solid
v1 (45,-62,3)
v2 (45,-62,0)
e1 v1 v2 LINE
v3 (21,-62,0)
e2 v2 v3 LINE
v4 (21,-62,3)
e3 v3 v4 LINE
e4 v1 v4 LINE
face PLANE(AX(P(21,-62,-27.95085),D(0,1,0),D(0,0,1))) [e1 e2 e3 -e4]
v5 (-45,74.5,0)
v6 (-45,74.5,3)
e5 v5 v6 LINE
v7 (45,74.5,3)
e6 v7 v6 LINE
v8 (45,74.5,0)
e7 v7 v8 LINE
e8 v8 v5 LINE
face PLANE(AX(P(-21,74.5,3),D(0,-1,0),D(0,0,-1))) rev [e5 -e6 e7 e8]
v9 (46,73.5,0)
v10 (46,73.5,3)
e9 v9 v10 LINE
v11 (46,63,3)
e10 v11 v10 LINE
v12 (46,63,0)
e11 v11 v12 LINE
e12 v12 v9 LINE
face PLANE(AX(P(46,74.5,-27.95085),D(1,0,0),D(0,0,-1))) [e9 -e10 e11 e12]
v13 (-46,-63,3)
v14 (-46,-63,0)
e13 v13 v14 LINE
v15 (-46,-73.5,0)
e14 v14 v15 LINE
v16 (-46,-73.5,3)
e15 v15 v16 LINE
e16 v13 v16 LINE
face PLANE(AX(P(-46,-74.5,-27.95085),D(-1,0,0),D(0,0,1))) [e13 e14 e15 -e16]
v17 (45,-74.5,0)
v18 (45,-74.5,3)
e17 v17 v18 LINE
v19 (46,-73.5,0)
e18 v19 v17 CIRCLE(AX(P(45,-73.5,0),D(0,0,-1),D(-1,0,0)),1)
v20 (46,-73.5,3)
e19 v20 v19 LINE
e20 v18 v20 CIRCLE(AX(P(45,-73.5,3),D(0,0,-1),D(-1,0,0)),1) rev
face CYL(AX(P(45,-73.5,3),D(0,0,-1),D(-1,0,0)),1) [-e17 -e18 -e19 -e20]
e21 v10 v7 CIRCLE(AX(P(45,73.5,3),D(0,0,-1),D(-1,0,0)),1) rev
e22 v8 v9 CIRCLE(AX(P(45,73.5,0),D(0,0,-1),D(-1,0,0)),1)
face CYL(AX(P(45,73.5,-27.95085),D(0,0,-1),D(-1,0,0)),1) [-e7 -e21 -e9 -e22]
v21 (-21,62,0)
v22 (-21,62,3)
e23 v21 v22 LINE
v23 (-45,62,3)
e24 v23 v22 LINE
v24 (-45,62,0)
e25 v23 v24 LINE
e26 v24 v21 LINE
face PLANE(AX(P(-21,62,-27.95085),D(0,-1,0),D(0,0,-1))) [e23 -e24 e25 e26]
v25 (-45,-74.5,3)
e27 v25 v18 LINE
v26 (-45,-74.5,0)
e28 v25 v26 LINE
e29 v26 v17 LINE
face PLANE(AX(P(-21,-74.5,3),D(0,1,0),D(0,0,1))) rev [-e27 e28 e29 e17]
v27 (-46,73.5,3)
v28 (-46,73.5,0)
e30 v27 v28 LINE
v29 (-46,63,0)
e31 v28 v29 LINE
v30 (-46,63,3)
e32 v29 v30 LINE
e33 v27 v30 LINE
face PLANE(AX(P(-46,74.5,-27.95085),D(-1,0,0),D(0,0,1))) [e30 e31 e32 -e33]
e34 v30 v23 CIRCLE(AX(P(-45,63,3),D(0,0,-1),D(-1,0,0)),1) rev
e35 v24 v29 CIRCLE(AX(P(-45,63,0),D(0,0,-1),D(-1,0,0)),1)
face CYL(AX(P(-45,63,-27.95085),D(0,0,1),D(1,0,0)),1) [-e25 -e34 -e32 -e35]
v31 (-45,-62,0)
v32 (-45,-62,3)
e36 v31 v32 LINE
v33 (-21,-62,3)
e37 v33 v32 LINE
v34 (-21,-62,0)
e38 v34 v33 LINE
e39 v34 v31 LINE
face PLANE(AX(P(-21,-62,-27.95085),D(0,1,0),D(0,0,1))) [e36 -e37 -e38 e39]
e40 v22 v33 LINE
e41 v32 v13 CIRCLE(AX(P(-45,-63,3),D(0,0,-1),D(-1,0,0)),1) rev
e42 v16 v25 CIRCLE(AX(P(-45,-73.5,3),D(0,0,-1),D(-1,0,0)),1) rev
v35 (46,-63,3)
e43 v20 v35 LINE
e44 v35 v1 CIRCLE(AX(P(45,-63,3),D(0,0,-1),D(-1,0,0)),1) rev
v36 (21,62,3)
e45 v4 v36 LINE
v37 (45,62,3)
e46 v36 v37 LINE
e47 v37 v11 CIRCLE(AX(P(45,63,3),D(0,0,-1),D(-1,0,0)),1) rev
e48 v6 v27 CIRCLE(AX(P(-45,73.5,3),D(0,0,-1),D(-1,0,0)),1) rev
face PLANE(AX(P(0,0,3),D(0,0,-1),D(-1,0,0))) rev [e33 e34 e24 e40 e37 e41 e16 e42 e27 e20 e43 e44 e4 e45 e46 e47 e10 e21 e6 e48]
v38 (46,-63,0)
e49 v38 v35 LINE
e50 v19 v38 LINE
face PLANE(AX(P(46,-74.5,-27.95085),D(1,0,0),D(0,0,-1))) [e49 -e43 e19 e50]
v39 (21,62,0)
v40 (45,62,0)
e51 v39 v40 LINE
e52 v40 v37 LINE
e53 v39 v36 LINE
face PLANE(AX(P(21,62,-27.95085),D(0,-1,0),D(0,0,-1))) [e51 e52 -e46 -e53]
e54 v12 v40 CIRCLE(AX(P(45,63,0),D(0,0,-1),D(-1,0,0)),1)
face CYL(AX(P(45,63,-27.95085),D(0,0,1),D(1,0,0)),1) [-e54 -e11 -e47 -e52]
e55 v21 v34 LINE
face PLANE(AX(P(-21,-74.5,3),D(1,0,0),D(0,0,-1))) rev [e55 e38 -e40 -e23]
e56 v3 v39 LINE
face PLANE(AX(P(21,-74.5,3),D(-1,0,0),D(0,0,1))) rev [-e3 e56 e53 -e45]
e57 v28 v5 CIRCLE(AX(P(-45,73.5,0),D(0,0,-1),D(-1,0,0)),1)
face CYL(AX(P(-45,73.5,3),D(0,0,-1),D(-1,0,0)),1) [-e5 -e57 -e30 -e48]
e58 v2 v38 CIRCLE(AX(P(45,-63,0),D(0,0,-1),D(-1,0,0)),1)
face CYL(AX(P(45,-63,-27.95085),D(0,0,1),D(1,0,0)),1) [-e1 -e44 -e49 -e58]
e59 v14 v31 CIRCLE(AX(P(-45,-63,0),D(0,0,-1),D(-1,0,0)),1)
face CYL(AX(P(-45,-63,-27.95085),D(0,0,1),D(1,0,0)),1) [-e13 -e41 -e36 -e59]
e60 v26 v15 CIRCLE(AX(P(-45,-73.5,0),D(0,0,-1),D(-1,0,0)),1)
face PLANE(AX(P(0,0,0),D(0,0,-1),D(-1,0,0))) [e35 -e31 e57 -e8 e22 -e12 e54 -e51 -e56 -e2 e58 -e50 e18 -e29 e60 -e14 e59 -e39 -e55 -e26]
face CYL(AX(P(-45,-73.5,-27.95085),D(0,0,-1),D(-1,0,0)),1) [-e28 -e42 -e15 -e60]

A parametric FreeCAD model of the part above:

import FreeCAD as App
import Part
import Sketcher
Q = App.Units.Quantity


def edges_at(feature, points):
    """Names of the edges that pass closest to the given points."""
    edges = feature.Shape.Edges
    near = lambda p: min(range(len(edges)), key=lambda i: edges[i].distToShape(Part.Vertex(*p))[0])
    return sorted({f"Edge{near(p) + 1}" for p in points})


def add_polygon(sketch, points):
    """Adds a closed chain of lines whose ends are joined by coincident constraints."""
    first, n = sketch.GeometryCount, len(points)
    for a, b in zip(points, points[1:] + points[:1]):
        sketch.addGeometry(Part.LineSegment(App.Vector(*a, 0), App.Vector(*b, 0)), False)
    for i in range(n):
        sketch.addConstraint(Sketcher.Constraint("Coincident", first + i, 2, first + (i + 1) % n, 1))

doc = App.newDocument("Part")
body = doc.addObject("PartDesign::Body", "Body")

sketch1 = body.newObject("Sketcher::SketchObject", "Sketch")
sketch1.AttachmentSupport = (doc.getObject("XY_Plane"), [""])
sketch1.MapMode = "FlatFace"
add_polygon(sketch1, [(-21, 74), (-21, -74), (21, -74), (21, 74)])
sketch1.addConstraint(Sketcher.Constraint("Vertical", 0))
sketch1.addConstraint(Sketcher.Constraint("Horizontal", 1))
sketch1.addConstraint(Sketcher.Constraint("Vertical", 2))
sketch1.addConstraint(Sketcher.Constraint("Horizontal", 3))
sketch1.addConstraint(Sketcher.Constraint("Symmetric", 0, 2, 2, 2, -1, 1))
sketch1.addConstraint(Sketcher.Constraint("DistanceX", 1, 1, 1, 2, Q("42 mm")))
sketch1.addConstraint(Sketcher.Constraint("DistanceY", 0, 2, 0, 1, Q("149 mm")))
pad1 = body.newObject("PartDesign::Pad", "Pad")
pad1.Profile = sketch1
pad1.Length = 3

sketch2 = body.newObject("Sketcher::SketchObject", "Sketch001")
sketch2.AttachmentSupport = (doc.getObject("XY_Plane"), [""])
sketch2.MapMode = "FlatFace"
sketch2.AttachmentOffset = App.Placement(App.Vector(0, 0, 3), App.Rotation())
add_polygon(sketch2, [(21, -62), (21, -74), (46, -74), (46, -62)])
add_polygon(sketch2, [(-46, -62), (-46, -74), (-21, -74), (-21, -62)])
add_polygon(sketch2, [(-46, 74), (-46, 62), (-21, 62), (-21, 74)])
add_polygon(sketch2, [(21, 74), (21, 62), (46, 62), (46, 74)])
sketch2.addConstraint(Sketcher.Constraint("Vertical", 0))
sketch2.addConstraint(Sketcher.Constraint("Horizontal", 1))
sketch2.addConstraint(Sketcher.Constraint("Vertical", 2))
sketch2.addConstraint(Sketcher.Constraint("Horizontal", 3))
sketch2.addConstraint(Sketcher.Constraint("Vertical", 4))
sketch2.addConstraint(Sketcher.Constraint("Horizontal", 5))
sketch2.addConstraint(Sketcher.Constraint("Vertical", 6))
sketch2.addConstraint(Sketcher.Constraint("Horizontal", 7))
sketch2.addConstraint(Sketcher.Constraint("Vertical", 8))
sketch2.addConstraint(Sketcher.Constraint("Horizontal", 9))
sketch2.addConstraint(Sketcher.Constraint("Vertical", 10))
sketch2.addConstraint(Sketcher.Constraint("Horizontal", 11))
sketch2.addConstraint(Sketcher.Constraint("Vertical", 12))
sketch2.addConstraint(Sketcher.Constraint("Horizontal", 13))
sketch2.addConstraint(Sketcher.Constraint("Vertical", 14))
sketch2.addConstraint(Sketcher.Constraint("Horizontal", 15))
sketch2.addConstraint(Sketcher.Constraint("Symmetric", 2, 2, 8, 2, -1, 1))
sketch2.addConstraint(Sketcher.Constraint("Symmetric", 0, 2, 10, 2, -1, 1))
sketch2.addConstraint(Sketcher.Constraint("Symmetric", 6, 2, 12, 2, -1, 1))
sketch2.addConstraint(Sketcher.Constraint("Symmetric", 4, 2, 14, 2, -1, 1))
sketch2.addConstraint(Sketcher.Constraint("Symmetric", 1, 2, 4, 2, -2))
sketch2.addConstraint(Sketcher.Constraint("Symmetric", 3, 2, 6, 2, -2))
sketch2.addConstraint(Sketcher.Constraint("DistanceX", 1, 1, 1, 2, Q("25 mm")))
sketch2.addConstraint(Sketcher.Constraint("DistanceY", 0, 2, 0, 1, Q("12.5 mm")))
sketch2.addConstraint(Sketcher.Constraint("DistanceX", -1, 1, 0, 2, Q("21 mm")))
sketch2.addConstraint(Sketcher.Constraint("DistanceY", 2, 2, -1, 1, Q("62 mm")))
pad2 = body.newObject("PartDesign::Pad", "Pad001")
pad2.Profile = sketch2
pad2.Length = 3
pad2.Reversed = True
doc.recompute()

fillet = body.newObject("PartDesign::Fillet", "Fillet")
fillet.Base = (pad2, edges_at(pad2, [
    (46, -74.5, 1.5),
    (46, -62, 1.5),
    (-46, -62, 1.5),
    (-46, -74.5, 1.5),
    (-46, 74.5, 1.5),
    (-46, 62, 1.5),
    (46, 62, 1.5),
    (46, 74.5, 1.5),
]))
fillet.Radius = 1

doc.recompute()
